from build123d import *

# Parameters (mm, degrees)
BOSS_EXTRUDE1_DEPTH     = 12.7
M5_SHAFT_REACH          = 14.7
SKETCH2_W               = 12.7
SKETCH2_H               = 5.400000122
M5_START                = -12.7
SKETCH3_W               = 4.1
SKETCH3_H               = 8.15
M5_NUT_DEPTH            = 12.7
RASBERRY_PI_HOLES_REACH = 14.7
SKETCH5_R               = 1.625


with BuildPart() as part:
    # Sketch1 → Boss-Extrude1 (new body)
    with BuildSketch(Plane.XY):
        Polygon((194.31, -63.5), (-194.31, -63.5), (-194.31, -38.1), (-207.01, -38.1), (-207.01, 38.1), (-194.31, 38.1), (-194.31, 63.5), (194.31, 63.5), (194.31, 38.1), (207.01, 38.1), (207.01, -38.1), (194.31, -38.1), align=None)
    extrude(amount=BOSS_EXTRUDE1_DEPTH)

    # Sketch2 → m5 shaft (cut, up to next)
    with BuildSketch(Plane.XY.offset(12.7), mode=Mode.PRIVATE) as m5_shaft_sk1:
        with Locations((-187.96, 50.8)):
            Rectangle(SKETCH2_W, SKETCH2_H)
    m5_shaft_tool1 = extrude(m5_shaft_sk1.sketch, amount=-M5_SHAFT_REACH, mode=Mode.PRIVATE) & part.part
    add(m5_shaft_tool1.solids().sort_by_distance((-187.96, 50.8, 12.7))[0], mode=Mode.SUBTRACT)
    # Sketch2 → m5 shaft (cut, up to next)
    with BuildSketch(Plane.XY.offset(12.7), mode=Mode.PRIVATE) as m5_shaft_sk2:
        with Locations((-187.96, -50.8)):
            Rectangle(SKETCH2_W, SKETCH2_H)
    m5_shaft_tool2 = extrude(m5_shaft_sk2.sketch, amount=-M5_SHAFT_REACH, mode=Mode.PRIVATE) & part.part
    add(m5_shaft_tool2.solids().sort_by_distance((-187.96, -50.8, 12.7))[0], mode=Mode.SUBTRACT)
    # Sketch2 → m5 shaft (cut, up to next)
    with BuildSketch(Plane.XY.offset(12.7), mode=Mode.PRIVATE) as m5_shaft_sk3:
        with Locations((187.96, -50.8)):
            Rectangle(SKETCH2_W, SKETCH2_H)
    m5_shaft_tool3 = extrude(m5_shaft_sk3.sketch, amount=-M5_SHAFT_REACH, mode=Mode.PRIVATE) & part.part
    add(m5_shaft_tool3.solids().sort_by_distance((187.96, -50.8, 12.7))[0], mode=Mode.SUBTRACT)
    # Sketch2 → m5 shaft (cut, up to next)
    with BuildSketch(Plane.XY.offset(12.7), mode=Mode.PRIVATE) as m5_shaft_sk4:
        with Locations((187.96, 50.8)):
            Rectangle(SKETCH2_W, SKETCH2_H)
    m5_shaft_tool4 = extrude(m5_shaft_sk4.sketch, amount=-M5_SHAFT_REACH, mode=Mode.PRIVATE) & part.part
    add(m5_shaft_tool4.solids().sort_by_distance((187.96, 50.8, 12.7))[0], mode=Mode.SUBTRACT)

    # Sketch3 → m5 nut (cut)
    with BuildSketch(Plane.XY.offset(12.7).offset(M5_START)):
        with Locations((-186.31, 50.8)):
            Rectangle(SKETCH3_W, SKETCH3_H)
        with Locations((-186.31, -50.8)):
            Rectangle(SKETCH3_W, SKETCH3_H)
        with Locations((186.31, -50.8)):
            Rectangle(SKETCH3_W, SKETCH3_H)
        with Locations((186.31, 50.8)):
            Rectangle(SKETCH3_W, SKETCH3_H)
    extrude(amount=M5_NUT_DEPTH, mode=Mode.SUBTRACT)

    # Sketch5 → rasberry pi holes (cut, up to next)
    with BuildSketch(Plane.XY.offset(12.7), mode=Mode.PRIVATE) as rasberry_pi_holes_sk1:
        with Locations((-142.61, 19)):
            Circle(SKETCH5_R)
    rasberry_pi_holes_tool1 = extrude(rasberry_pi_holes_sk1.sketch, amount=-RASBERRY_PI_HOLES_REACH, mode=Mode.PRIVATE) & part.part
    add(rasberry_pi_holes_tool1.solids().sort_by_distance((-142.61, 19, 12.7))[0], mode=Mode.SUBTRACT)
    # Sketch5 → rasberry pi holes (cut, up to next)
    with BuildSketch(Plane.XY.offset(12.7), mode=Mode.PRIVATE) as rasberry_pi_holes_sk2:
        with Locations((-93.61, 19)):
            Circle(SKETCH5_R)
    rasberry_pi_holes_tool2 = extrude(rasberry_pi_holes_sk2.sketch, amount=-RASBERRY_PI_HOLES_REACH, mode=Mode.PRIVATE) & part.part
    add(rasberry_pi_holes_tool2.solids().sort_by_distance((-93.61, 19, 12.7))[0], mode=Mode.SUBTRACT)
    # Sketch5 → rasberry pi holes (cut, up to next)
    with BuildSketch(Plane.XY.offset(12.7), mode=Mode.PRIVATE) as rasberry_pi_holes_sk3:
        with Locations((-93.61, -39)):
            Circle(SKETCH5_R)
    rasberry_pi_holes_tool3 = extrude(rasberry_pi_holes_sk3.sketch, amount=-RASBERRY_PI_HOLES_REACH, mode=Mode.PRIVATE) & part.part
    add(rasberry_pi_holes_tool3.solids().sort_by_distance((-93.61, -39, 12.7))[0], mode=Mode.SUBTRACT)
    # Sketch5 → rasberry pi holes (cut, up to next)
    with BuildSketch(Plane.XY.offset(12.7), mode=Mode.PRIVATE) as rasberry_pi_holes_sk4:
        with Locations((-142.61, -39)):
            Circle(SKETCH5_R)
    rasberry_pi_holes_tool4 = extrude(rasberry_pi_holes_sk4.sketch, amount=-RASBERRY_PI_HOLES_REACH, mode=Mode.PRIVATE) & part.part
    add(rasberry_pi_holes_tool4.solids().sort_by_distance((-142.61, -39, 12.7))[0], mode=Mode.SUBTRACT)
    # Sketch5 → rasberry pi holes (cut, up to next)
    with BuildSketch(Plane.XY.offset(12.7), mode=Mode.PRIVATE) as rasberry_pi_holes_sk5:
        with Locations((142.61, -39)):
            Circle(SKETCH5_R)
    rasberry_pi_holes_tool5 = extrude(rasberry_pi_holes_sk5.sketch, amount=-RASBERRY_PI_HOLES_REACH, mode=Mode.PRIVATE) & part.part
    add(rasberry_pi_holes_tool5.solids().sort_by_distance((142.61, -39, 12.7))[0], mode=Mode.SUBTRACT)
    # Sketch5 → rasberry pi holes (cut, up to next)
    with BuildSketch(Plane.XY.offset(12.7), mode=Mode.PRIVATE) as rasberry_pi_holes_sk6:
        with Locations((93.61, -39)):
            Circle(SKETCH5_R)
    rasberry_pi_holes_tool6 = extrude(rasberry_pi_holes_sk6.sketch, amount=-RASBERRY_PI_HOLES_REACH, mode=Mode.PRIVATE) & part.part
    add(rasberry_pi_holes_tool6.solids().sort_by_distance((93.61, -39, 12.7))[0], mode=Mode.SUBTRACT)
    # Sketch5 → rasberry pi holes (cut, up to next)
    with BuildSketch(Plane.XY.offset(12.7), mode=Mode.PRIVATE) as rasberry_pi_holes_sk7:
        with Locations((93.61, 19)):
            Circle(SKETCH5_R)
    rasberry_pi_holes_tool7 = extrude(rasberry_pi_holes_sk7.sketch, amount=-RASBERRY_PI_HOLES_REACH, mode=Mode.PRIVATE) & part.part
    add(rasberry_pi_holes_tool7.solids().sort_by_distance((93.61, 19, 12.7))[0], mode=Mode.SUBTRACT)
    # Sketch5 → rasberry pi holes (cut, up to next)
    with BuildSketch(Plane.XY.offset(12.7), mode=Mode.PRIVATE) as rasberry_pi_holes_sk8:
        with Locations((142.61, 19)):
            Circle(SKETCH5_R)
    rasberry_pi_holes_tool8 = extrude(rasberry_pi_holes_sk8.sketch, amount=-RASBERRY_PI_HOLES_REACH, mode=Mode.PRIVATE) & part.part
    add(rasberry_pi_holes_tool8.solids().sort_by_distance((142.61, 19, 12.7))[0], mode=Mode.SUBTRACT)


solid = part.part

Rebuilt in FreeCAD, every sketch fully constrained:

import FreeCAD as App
import Part
import Sketcher

V = App.Vector
Q = App.Units.Quantity


def add_polygon(sketch, points):
    """Adds a closed chain of lines whose ends are joined by coincident constraints."""
    first, n = sketch.GeometryCount, len(points)
    for a, b in zip(points, points[1:] + points[:1]):
        sketch.addGeometry(Part.LineSegment(App.Vector(*a, 0), App.Vector(*b, 0)), False)
    for i in range(n):
        sketch.addConstraint(Sketcher.Constraint("Coincident", first + i, 2, first + (i + 1) % n, 1))

doc = App.newDocument("Part")
body = doc.addObject("PartDesign::Body", "Body")

# Sketch on XY plane
sketch1 = body.newObject("Sketcher::SketchObject", "Sketch")
sketch1.AttachmentSupport = (doc.getObject("XY_Plane"), [""])
sketch1.MapMode = "FlatFace"
add_polygon(sketch1, [(-194, -64), (194, -64), (194, -38), (207, -38), (207, 38), (194, 38), (194, 64), (-194, 64), (-194, 38), (-207, 38), (-207, -38), (-194, -38)])  # lines 0-11
sketch1.addConstraint(Sketcher.Constraint("Horizontal", 0))
sketch1.addConstraint(Sketcher.Constraint("Vertical", 1))
sketch1.addConstraint(Sketcher.Constraint("Horizontal", 2))
sketch1.addConstraint(Sketcher.Constraint("Vertical", 3))
sketch1.addConstraint(Sketcher.Constraint("Horizontal", 4))
sketch1.addConstraint(Sketcher.Constraint("Vertical", 5))
sketch1.addConstraint(Sketcher.Constraint("Horizontal", 6))
sketch1.addConstraint(Sketcher.Constraint("Vertical", 7))
sketch1.addConstraint(Sketcher.Constraint("Horizontal", 8))
sketch1.addConstraint(Sketcher.Constraint("Vertical", 9))
sketch1.addConstraint(Sketcher.Constraint("Horizontal", 10))
sketch1.addConstraint(Sketcher.Constraint("Vertical", 11))
sketch1.addConstraint(Sketcher.Constraint("Symmetric", 0, 2, 6, 2, -1, 1))
sketch1.addConstraint(Sketcher.Constraint("Symmetric", 2, 2, 8, 2, -1, 1))
sketch1.addConstraint(Sketcher.Constraint("Symmetric", 4, 2, 10, 2, -1, 1))
sketch1.addConstraint(Sketcher.Constraint("Symmetric", 4, 2, 7, 2, -2))
sketch1.addConstraint(Sketcher.Constraint("DistanceY", 1, 1, 1, 2, Q("1 in")))
sketch1.addConstraint(Sketcher.Constraint("DistanceY", 3, 1, 3, 2, Q("3 in")))
sketch1.addConstraint(Sketcher.Constraint("DistanceX", 0, 1, 0, 2, Q("15.3 in")))
sketch1.addConstraint(Sketcher.Constraint("DistanceX", 2, 1, 2, 2, Q("0.5 in")))
pad1 = body.newObject("PartDesign::Pad", "Pad")
pad1.Profile = sketch1
pad1.Length = Q("0.5 in")

# Sketch on XY plane
sketch2 = body.newObject("Sketcher::SketchObject", "Sketch001")
sketch2.AttachmentSupport = (doc.getObject("XY_Plane"), [""])
sketch2.MapMode = "FlatFace"
sketch2.AttachmentOffset = App.Placement(V(0, 0, 0.5 * 25.4), App.Rotation())
add_polygon(sketch2, [(-194, 54), (-194, 48), (-182, 48), (-182, 54)])  # lines 0-3
sketch2.addConstraint(Sketcher.Constraint("Vertical", 0))
sketch2.addConstraint(Sketcher.Constraint("Horizontal", 1))
sketch2.addConstraint(Sketcher.Constraint("Vertical", 2))
sketch2.addConstraint(Sketcher.Constraint("Horizontal", 3))
sketch2.addConstraint(Sketcher.Constraint("DistanceX", 1, 1, 1, 2, Q("0.5 in")))
sketch2.addConstraint(Sketcher.Constraint("DistanceX", 0, 2, -1, 1, Q("7.65 in")))
sketch2.addConstraint(Sketcher.Constraint("DistanceY", 0, 2, 0, 1, Q("5.4 mm")))
sketch2.addConstraint(Sketcher.Constraint("DistanceY", -1, 1, 0, 2, Q("48.1 mm")))
pocket1 = body.newObject("PartDesign::Pocket", "Pocket")
pocket1.Profile = sketch2
pocket1.Type = "UpToFirst"

# Sketch on XY plane
sketch3 = body.newObject("Sketcher::SketchObject", "Sketch002")
sketch3.AttachmentSupport = (doc.getObject("XY_Plane"), [""])
sketch3.MapMode = "FlatFace"
sketch3.AttachmentOffset = App.Placement(V(0, 0, 0.5 * 25.4), App.Rotation())
add_polygon(sketch3, [(-194, -48), (-194, -54), (-182, -54), (-182, -48)])  # lines 0-3
sketch3.addConstraint(Sketcher.Constraint("Vertical", 0))
sketch3.addConstraint(Sketcher.Constraint("Horizontal", 1))
sketch3.addConstraint(Sketcher.Constraint("Vertical", 2))
sketch3.addConstraint(Sketcher.Constraint("Horizontal", 3))
sketch3.addConstraint(Sketcher.Constraint("DistanceX", 1, 1, 1, 2, Q("0.5 in")))
sketch3.addConstraint(Sketcher.Constraint("DistanceX", 0, 2, -1, 1, Q("7.65 in")))
sketch3.addConstraint(Sketcher.Constraint("DistanceY", 0, 2, 0, 1, Q("5.4 mm")))
sketch3.addConstraint(Sketcher.Constraint("DistanceY", 0, 2, -1, 1, Q("53.5 mm")))
pocket2 = body.newObject("PartDesign::Pocket", "Pocket001")
pocket2.Profile = sketch3
pocket2.Type = "UpToFirst"

# Sketch on XY plane
sketch4 = body.newObject("Sketcher::SketchObject", "Sketch003")
sketch4.AttachmentSupport = (doc.getObject("XY_Plane"), [""])
sketch4.MapMode = "FlatFace"
sketch4.AttachmentOffset = App.Placement(V(0, 0, 0.5 * 25.4), App.Rotation())
add_polygon(sketch4, [(182, -48), (182, -54), (194, -54), (194, -48)])  # lines 0-3
sketch4.addConstraint(Sketcher.Constraint("Vertical", 0))
sketch4.addConstraint(Sketcher.Constraint("Horizontal", 1))
sketch4.addConstraint(Sketcher.Constraint("Vertical", 2))
sketch4.addConstraint(Sketcher.Constraint("Horizontal", 3))
sketch4.addConstraint(Sketcher.Constraint("DistanceX", 1, 1, 1, 2, Q("0.5 in")))
sketch4.addConstraint(Sketcher.Constraint("DistanceX", -1, 1, 0, 2, Q("7.15 in")))
sketch4.addConstraint(Sketcher.Constraint("DistanceY", 0, 2, 0, 1, Q("5.4 mm")))
sketch4.addConstraint(Sketcher.Constraint("DistanceY", 0, 2, -1, 1, Q("53.5 mm")))
pocket3 = body.newObject("PartDesign::Pocket", "Pocket002")
pocket3.Profile = sketch4
pocket3.Type = "UpToFirst"

# Sketch on XY plane
sketch5 = body.newObject("Sketcher::SketchObject", "Sketch004")
sketch5.AttachmentSupport = (doc.getObject("XY_Plane"), [""])
sketch5.MapMode = "FlatFace"
sketch5.AttachmentOffset = App.Placement(V(0, 0, 0.5 * 25.4), App.Rotation())
add_polygon(sketch5, [(182, 54), (182, 48), (194, 48), (194, 54)])  # lines 0-3
sketch5.addConstraint(Sketcher.Constraint("Vertical", 0))
sketch5.addConstraint(Sketcher.Constraint("Horizontal", 1))
sketch5.addConstraint(Sketcher.Constraint("Vertical", 2))
sketch5.addConstraint(Sketcher.Constraint("Horizontal", 3))
sketch5.addConstraint(Sketcher.Constraint("DistanceX", 1, 1, 1, 2, Q("0.5 in")))
sketch5.addConstraint(Sketcher.Constraint("DistanceX", -1, 1, 0, 2, Q("7.15 in")))
sketch5.addConstraint(Sketcher.Constraint("DistanceY", 0, 2, 0, 1, Q("5.4 mm")))
sketch5.addConstraint(Sketcher.Constraint("DistanceY", -1, 1, 0, 2, Q("48.1 mm")))
pocket4 = body.newObject("PartDesign::Pocket", "Pocket003")
pocket4.Profile = sketch5
pocket4.Type = "UpToFirst"

# Sketch on XY plane
sketch6 = body.newObject("Sketcher::SketchObject", "Sketch005")
sketch6.AttachmentSupport = (doc.getObject("XY_Plane"), [""])
sketch6.MapMode = "FlatFace"
add_polygon(sketch6, [(-188.4, 54.9), (-188.4, 46.7), (-184.3, 46.7), (-184.3, 54.9)])  # lines 0-3
add_polygon(sketch6, [(-188.4, -46.7), (-188.4, -54.9), (-184.3, -54.9), (-184.3, -46.7)])  # lines 4-7
add_polygon(sketch6, [(184.3, -46.7), (184.3, -54.9), (188.4, -54.9), (188.4, -46.7)])  # lines 8-11
add_polygon(sketch6, [(184.3, 54.9), (184.3, 46.7), (188.4, 46.7), (188.4, 54.9)])  # lines 12-15
sketch6.addConstraint(Sketcher.Constraint("Vertical", 0))
sketch6.addConstraint(Sketcher.Constraint("Horizontal", 1))
sketch6.addConstraint(Sketcher.Constraint("Vertical", 2))
sketch6.addConstraint(Sketcher.Constraint("Horizontal", 3))
sketch6.addConstraint(Sketcher.Constraint("Vertical", 4))
sketch6.addConstraint(Sketcher.Constraint("Horizontal", 5))
sketch6.addConstraint(Sketcher.Constraint("Vertical", 6))
sketch6.addConstraint(Sketcher.Constraint("Horizontal", 7))
sketch6.addConstraint(Sketcher.Constraint("Vertical", 8))
sketch6.addConstraint(Sketcher.Constraint("Horizontal", 9))
sketch6.addConstraint(Sketcher.Constraint("Vertical", 10))
sketch6.addConstraint(Sketcher.Constraint("Horizontal", 11))
sketch6.addConstraint(Sketcher.Constraint("Vertical", 12))
sketch6.addConstraint(Sketcher.Constraint("Horizontal", 13))
sketch6.addConstraint(Sketcher.Constraint("Vertical", 14))
sketch6.addConstraint(Sketcher.Constraint("Horizontal", 15))
sketch6.addConstraint(Sketcher.Constraint("Symmetric", 2, 2, 8, 2, -1, 1))
sketch6.addConstraint(Sketcher.Constraint("Symmetric", 0, 2, 10, 2, -1, 1))
sketch6.addConstraint(Sketcher.Constraint("Symmetric", 6, 2, 12, 2, -1, 1))
sketch6.addConstraint(Sketcher.Constraint("Symmetric", 4, 2, 14, 2, -1, 1))
sketch6.addConstraint(Sketcher.Constraint("Symmetric", 5, 2, 8, 2, -2))
sketch6.addConstraint(Sketcher.Constraint("Symmetric", 7, 2, 10, 2, -2))
sketch6.addConstraint(Sketcher.Constraint("DistanceY", 4, 2, 0, 2, Q("4 in")))
sketch6.addConstraint(Sketcher.Constraint("DistanceX", 1, 1, 1, 2, Q("4.1 mm")))
sketch6.addConstraint(Sketcher.Constraint("DistanceY", 0, 2, 0, 1, Q("8.15 mm")))
sketch6.addConstraint(Sketcher.Constraint("DistanceX", 0, 2, -1, 1, Q("188.36 mm")))
pocket5 = body.newObject("PartDesign::Pocket", "Pocket004")
pocket5.Profile = sketch6
pocket5.Length = Q("0.5 in")
pocket5.Reversed = True

# Sketch on XY plane
sketch7 = body.newObject("Sketcher::SketchObject", "Sketch006")
sketch7.AttachmentSupport = (doc.getObject("XY_Plane"), [""])
sketch7.MapMode = "FlatFace"
sketch7.AttachmentOffset = App.Placement(V(0, 0, 0.5 * 25.4), App.Rotation())
sketch7.addGeometry(Part.Circle(V(-142.6, 19, 0), V(0, 0, 1), 1.6), False)
sketch7.addConstraint(Sketcher.Constraint("Diameter", 0, Q("3.25 mm")))
sketch7.addConstraint(Sketcher.Constraint("DistanceX", 0, 3, -1, 1, Q("142.61 mm")))
sketch7.addConstraint(Sketcher.Constraint("DistanceY", -1, 1, 0, 3, Q("19 mm")))
pocket6 = body.newObject("PartDesign::Pocket", "Pocket005")
pocket6.Profile = sketch7
pocket6.Type = "UpToFirst"

# Sketch on XY plane
sketch8 = body.newObject("Sketcher::SketchObject", "Sketch007")
sketch8.AttachmentSupport = (doc.getObject("XY_Plane"), [""])
sketch8.MapMode = "FlatFace"
sketch8.AttachmentOffset = App.Placement(V(0, 0, 0.5 * 25.4), App.Rotation())
sketch8.addGeometry(Part.Circle(V(-93.6, 19, 0), V(0, 0, 1), 1.6), False)
sketch8.addConstraint(Sketcher.Constraint("Diameter", 0, Q("3.25 mm")))
sketch8.addConstraint(Sketcher.Constraint("DistanceX", 0, 3, -1, 1, Q("93.61 mm")))
sketch8.addConstraint(Sketcher.Constraint("DistanceY", -1, 1, 0, 3, Q("19 mm")))
pocket7 = body.newObject("PartDesign::Pocket", "Pocket006")
pocket7.Profile = sketch8
pocket7.Type = "UpToFirst"

# Sketch on XY plane
sketch9 = body.newObject("Sketcher::SketchObject", "Sketch008")
sketch9.AttachmentSupport = (doc.getObject("XY_Plane"), [""])
sketch9.MapMode = "FlatFace"
sketch9.AttachmentOffset = App.Placement(V(0, 0, 0.5 * 25.4), App.Rotation())
sketch9.addGeometry(Part.Circle(V(-93.6, -39, 0), V(0, 0, 1), 1.6), False)
sketch9.addConstraint(Sketcher.Constraint("Diameter", 0, Q("3.25 mm")))
sketch9.addConstraint(Sketcher.Constraint("DistanceX", 0, 3, -1, 1, Q("93.61 mm")))
sketch9.addConstraint(Sketcher.Constraint("DistanceY", 0, 3, -1, 1, Q("39 mm")))
pocket8 = body.newObject("PartDesign::Pocket", "Pocket007")
pocket8.Profile = sketch9
pocket8.Type = "UpToFirst"

# Sketch on XY plane
sketch10 = body.newObject("Sketcher::SketchObject", "Sketch009")
sketch10.AttachmentSupport = (doc.getObject("XY_Plane"), [""])
sketch10.MapMode = "FlatFace"
sketch10.AttachmentOffset = App.Placement(V(0, 0, 0.5 * 25.4), App.Rotation())
sketch10.addGeometry(Part.Circle(V(-142.6, -39, 0), V(0, 0, 1), 1.6), False)
sketch10.addConstraint(Sketcher.Constraint("Diameter", 0, Q("3.25 mm")))
sketch10.addConstraint(Sketcher.Constraint("DistanceX", 0, 3, -1, 1, Q("142.61 mm")))
sketch10.addConstraint(Sketcher.Constraint("DistanceY", 0, 3, -1, 1, Q("39 mm")))
pocket9 = body.newObject("PartDesign::Pocket", "Pocket008")
pocket9.Profile = sketch10
pocket9.Type = "UpToFirst"

# Sketch on XY plane
sketch11 = body.newObject("Sketcher::SketchObject", "Sketch010")
sketch11.AttachmentSupport = (doc.getObject("XY_Plane"), [""])
sketch11.MapMode = "FlatFace"
sketch11.AttachmentOffset = App.Placement(V(0, 0, 0.5 * 25.4), App.Rotation())
sketch11.addGeometry(Part.Circle(V(142.6, -39, 0), V(0, 0, 1), 1.6), False)
sketch11.addConstraint(Sketcher.Constraint("Diameter", 0, Q("3.25 mm")))
sketch11.addConstraint(Sketcher.Constraint("DistanceX", -1, 1, 0, 3, Q("142.61 mm")))
sketch11.addConstraint(Sketcher.Constraint("DistanceY", 0, 3, -1, 1, Q("39 mm")))
pocket10 = body.newObject("PartDesign::Pocket", "Pocket009")
pocket10.Profile = sketch11
pocket10.Type = "UpToFirst"

# Sketch on XY plane
sketch12 = body.newObject("Sketcher::SketchObject", "Sketch011")
sketch12.AttachmentSupport = (doc.getObject("XY_Plane"), [""])
sketch12.MapMode = "FlatFace"
sketch12.AttachmentOffset = App.Placement(V(0, 0, 0.5 * 25.4), App.Rotation())
sketch12.addGeometry(Part.Circle(V(93.6, -39, 0), V(0, 0, 1), 1.6), False)
sketch12.addConstraint(Sketcher.Constraint("Diameter", 0, Q("3.25 mm")))
sketch12.addConstraint(Sketcher.Constraint("DistanceX", -1, 1, 0, 3, Q("93.61 mm")))
sketch12.addConstraint(Sketcher.Constraint("DistanceY", 0, 3, -1, 1, Q("39 mm")))
pocket11 = body.newObject("PartDesign::Pocket", "Pocket010")
pocket11.Profile = sketch12
pocket11.Type = "UpToFirst"

# Sketch on XY plane
sketch13 = body.newObject("Sketcher::SketchObject", "Sketch012")
sketch13.AttachmentSupport = (doc.getObject("XY_Plane"), [""])
sketch13.MapMode = "FlatFace"
sketch13.AttachmentOffset = App.Placement(V(0, 0, 0.5 * 25.4), App.Rotation())
sketch13.addGeometry(Part.Circle(V(93.6, 19, 0), V(0, 0, 1), 1.6), False)
sketch13.addConstraint(Sketcher.Constraint("Diameter", 0, Q("3.25 mm")))
sketch13.addConstraint(Sketcher.Constraint("DistanceX", -1, 1, 0, 3, Q("93.61 mm")))
sketch13.addConstraint(Sketcher.Constraint("DistanceY", -1, 1, 0, 3, Q("19 mm")))
pocket12 = body.newObject("PartDesign::Pocket", "Pocket011")
pocket12.Profile = sketch13
pocket12.Type = "UpToFirst"

# Sketch on XY plane
sketch14 = body.newObject("Sketcher::SketchObject", "Sketch013")
sketch14.AttachmentSupport = (doc.getObject("XY_Plane"), [""])
sketch14.MapMode = "FlatFace"
sketch14.AttachmentOffset = App.Placement(V(0, 0, 0.5 * 25.4), App.Rotation())
sketch14.addGeometry(Part.Circle(V(142.6, 19, 0), V(0, 0, 1), 1.6), False)
sketch14.addConstraint(Sketcher.Constraint("Diameter", 0, Q("3.25 mm")))
sketch14.addConstraint(Sketcher.Constraint("DistanceX", -1, 1, 0, 3, Q("142.61 mm")))
sketch14.addConstraint(Sketcher.Constraint("DistanceY", -1, 1, 0, 3, Q("19 mm")))
pocket13 = body.newObject("PartDesign::Pocket", "Pocket012")
pocket13.Profile = sketch14
pocket13.Type = "UpToFirst"

doc.recompute()
